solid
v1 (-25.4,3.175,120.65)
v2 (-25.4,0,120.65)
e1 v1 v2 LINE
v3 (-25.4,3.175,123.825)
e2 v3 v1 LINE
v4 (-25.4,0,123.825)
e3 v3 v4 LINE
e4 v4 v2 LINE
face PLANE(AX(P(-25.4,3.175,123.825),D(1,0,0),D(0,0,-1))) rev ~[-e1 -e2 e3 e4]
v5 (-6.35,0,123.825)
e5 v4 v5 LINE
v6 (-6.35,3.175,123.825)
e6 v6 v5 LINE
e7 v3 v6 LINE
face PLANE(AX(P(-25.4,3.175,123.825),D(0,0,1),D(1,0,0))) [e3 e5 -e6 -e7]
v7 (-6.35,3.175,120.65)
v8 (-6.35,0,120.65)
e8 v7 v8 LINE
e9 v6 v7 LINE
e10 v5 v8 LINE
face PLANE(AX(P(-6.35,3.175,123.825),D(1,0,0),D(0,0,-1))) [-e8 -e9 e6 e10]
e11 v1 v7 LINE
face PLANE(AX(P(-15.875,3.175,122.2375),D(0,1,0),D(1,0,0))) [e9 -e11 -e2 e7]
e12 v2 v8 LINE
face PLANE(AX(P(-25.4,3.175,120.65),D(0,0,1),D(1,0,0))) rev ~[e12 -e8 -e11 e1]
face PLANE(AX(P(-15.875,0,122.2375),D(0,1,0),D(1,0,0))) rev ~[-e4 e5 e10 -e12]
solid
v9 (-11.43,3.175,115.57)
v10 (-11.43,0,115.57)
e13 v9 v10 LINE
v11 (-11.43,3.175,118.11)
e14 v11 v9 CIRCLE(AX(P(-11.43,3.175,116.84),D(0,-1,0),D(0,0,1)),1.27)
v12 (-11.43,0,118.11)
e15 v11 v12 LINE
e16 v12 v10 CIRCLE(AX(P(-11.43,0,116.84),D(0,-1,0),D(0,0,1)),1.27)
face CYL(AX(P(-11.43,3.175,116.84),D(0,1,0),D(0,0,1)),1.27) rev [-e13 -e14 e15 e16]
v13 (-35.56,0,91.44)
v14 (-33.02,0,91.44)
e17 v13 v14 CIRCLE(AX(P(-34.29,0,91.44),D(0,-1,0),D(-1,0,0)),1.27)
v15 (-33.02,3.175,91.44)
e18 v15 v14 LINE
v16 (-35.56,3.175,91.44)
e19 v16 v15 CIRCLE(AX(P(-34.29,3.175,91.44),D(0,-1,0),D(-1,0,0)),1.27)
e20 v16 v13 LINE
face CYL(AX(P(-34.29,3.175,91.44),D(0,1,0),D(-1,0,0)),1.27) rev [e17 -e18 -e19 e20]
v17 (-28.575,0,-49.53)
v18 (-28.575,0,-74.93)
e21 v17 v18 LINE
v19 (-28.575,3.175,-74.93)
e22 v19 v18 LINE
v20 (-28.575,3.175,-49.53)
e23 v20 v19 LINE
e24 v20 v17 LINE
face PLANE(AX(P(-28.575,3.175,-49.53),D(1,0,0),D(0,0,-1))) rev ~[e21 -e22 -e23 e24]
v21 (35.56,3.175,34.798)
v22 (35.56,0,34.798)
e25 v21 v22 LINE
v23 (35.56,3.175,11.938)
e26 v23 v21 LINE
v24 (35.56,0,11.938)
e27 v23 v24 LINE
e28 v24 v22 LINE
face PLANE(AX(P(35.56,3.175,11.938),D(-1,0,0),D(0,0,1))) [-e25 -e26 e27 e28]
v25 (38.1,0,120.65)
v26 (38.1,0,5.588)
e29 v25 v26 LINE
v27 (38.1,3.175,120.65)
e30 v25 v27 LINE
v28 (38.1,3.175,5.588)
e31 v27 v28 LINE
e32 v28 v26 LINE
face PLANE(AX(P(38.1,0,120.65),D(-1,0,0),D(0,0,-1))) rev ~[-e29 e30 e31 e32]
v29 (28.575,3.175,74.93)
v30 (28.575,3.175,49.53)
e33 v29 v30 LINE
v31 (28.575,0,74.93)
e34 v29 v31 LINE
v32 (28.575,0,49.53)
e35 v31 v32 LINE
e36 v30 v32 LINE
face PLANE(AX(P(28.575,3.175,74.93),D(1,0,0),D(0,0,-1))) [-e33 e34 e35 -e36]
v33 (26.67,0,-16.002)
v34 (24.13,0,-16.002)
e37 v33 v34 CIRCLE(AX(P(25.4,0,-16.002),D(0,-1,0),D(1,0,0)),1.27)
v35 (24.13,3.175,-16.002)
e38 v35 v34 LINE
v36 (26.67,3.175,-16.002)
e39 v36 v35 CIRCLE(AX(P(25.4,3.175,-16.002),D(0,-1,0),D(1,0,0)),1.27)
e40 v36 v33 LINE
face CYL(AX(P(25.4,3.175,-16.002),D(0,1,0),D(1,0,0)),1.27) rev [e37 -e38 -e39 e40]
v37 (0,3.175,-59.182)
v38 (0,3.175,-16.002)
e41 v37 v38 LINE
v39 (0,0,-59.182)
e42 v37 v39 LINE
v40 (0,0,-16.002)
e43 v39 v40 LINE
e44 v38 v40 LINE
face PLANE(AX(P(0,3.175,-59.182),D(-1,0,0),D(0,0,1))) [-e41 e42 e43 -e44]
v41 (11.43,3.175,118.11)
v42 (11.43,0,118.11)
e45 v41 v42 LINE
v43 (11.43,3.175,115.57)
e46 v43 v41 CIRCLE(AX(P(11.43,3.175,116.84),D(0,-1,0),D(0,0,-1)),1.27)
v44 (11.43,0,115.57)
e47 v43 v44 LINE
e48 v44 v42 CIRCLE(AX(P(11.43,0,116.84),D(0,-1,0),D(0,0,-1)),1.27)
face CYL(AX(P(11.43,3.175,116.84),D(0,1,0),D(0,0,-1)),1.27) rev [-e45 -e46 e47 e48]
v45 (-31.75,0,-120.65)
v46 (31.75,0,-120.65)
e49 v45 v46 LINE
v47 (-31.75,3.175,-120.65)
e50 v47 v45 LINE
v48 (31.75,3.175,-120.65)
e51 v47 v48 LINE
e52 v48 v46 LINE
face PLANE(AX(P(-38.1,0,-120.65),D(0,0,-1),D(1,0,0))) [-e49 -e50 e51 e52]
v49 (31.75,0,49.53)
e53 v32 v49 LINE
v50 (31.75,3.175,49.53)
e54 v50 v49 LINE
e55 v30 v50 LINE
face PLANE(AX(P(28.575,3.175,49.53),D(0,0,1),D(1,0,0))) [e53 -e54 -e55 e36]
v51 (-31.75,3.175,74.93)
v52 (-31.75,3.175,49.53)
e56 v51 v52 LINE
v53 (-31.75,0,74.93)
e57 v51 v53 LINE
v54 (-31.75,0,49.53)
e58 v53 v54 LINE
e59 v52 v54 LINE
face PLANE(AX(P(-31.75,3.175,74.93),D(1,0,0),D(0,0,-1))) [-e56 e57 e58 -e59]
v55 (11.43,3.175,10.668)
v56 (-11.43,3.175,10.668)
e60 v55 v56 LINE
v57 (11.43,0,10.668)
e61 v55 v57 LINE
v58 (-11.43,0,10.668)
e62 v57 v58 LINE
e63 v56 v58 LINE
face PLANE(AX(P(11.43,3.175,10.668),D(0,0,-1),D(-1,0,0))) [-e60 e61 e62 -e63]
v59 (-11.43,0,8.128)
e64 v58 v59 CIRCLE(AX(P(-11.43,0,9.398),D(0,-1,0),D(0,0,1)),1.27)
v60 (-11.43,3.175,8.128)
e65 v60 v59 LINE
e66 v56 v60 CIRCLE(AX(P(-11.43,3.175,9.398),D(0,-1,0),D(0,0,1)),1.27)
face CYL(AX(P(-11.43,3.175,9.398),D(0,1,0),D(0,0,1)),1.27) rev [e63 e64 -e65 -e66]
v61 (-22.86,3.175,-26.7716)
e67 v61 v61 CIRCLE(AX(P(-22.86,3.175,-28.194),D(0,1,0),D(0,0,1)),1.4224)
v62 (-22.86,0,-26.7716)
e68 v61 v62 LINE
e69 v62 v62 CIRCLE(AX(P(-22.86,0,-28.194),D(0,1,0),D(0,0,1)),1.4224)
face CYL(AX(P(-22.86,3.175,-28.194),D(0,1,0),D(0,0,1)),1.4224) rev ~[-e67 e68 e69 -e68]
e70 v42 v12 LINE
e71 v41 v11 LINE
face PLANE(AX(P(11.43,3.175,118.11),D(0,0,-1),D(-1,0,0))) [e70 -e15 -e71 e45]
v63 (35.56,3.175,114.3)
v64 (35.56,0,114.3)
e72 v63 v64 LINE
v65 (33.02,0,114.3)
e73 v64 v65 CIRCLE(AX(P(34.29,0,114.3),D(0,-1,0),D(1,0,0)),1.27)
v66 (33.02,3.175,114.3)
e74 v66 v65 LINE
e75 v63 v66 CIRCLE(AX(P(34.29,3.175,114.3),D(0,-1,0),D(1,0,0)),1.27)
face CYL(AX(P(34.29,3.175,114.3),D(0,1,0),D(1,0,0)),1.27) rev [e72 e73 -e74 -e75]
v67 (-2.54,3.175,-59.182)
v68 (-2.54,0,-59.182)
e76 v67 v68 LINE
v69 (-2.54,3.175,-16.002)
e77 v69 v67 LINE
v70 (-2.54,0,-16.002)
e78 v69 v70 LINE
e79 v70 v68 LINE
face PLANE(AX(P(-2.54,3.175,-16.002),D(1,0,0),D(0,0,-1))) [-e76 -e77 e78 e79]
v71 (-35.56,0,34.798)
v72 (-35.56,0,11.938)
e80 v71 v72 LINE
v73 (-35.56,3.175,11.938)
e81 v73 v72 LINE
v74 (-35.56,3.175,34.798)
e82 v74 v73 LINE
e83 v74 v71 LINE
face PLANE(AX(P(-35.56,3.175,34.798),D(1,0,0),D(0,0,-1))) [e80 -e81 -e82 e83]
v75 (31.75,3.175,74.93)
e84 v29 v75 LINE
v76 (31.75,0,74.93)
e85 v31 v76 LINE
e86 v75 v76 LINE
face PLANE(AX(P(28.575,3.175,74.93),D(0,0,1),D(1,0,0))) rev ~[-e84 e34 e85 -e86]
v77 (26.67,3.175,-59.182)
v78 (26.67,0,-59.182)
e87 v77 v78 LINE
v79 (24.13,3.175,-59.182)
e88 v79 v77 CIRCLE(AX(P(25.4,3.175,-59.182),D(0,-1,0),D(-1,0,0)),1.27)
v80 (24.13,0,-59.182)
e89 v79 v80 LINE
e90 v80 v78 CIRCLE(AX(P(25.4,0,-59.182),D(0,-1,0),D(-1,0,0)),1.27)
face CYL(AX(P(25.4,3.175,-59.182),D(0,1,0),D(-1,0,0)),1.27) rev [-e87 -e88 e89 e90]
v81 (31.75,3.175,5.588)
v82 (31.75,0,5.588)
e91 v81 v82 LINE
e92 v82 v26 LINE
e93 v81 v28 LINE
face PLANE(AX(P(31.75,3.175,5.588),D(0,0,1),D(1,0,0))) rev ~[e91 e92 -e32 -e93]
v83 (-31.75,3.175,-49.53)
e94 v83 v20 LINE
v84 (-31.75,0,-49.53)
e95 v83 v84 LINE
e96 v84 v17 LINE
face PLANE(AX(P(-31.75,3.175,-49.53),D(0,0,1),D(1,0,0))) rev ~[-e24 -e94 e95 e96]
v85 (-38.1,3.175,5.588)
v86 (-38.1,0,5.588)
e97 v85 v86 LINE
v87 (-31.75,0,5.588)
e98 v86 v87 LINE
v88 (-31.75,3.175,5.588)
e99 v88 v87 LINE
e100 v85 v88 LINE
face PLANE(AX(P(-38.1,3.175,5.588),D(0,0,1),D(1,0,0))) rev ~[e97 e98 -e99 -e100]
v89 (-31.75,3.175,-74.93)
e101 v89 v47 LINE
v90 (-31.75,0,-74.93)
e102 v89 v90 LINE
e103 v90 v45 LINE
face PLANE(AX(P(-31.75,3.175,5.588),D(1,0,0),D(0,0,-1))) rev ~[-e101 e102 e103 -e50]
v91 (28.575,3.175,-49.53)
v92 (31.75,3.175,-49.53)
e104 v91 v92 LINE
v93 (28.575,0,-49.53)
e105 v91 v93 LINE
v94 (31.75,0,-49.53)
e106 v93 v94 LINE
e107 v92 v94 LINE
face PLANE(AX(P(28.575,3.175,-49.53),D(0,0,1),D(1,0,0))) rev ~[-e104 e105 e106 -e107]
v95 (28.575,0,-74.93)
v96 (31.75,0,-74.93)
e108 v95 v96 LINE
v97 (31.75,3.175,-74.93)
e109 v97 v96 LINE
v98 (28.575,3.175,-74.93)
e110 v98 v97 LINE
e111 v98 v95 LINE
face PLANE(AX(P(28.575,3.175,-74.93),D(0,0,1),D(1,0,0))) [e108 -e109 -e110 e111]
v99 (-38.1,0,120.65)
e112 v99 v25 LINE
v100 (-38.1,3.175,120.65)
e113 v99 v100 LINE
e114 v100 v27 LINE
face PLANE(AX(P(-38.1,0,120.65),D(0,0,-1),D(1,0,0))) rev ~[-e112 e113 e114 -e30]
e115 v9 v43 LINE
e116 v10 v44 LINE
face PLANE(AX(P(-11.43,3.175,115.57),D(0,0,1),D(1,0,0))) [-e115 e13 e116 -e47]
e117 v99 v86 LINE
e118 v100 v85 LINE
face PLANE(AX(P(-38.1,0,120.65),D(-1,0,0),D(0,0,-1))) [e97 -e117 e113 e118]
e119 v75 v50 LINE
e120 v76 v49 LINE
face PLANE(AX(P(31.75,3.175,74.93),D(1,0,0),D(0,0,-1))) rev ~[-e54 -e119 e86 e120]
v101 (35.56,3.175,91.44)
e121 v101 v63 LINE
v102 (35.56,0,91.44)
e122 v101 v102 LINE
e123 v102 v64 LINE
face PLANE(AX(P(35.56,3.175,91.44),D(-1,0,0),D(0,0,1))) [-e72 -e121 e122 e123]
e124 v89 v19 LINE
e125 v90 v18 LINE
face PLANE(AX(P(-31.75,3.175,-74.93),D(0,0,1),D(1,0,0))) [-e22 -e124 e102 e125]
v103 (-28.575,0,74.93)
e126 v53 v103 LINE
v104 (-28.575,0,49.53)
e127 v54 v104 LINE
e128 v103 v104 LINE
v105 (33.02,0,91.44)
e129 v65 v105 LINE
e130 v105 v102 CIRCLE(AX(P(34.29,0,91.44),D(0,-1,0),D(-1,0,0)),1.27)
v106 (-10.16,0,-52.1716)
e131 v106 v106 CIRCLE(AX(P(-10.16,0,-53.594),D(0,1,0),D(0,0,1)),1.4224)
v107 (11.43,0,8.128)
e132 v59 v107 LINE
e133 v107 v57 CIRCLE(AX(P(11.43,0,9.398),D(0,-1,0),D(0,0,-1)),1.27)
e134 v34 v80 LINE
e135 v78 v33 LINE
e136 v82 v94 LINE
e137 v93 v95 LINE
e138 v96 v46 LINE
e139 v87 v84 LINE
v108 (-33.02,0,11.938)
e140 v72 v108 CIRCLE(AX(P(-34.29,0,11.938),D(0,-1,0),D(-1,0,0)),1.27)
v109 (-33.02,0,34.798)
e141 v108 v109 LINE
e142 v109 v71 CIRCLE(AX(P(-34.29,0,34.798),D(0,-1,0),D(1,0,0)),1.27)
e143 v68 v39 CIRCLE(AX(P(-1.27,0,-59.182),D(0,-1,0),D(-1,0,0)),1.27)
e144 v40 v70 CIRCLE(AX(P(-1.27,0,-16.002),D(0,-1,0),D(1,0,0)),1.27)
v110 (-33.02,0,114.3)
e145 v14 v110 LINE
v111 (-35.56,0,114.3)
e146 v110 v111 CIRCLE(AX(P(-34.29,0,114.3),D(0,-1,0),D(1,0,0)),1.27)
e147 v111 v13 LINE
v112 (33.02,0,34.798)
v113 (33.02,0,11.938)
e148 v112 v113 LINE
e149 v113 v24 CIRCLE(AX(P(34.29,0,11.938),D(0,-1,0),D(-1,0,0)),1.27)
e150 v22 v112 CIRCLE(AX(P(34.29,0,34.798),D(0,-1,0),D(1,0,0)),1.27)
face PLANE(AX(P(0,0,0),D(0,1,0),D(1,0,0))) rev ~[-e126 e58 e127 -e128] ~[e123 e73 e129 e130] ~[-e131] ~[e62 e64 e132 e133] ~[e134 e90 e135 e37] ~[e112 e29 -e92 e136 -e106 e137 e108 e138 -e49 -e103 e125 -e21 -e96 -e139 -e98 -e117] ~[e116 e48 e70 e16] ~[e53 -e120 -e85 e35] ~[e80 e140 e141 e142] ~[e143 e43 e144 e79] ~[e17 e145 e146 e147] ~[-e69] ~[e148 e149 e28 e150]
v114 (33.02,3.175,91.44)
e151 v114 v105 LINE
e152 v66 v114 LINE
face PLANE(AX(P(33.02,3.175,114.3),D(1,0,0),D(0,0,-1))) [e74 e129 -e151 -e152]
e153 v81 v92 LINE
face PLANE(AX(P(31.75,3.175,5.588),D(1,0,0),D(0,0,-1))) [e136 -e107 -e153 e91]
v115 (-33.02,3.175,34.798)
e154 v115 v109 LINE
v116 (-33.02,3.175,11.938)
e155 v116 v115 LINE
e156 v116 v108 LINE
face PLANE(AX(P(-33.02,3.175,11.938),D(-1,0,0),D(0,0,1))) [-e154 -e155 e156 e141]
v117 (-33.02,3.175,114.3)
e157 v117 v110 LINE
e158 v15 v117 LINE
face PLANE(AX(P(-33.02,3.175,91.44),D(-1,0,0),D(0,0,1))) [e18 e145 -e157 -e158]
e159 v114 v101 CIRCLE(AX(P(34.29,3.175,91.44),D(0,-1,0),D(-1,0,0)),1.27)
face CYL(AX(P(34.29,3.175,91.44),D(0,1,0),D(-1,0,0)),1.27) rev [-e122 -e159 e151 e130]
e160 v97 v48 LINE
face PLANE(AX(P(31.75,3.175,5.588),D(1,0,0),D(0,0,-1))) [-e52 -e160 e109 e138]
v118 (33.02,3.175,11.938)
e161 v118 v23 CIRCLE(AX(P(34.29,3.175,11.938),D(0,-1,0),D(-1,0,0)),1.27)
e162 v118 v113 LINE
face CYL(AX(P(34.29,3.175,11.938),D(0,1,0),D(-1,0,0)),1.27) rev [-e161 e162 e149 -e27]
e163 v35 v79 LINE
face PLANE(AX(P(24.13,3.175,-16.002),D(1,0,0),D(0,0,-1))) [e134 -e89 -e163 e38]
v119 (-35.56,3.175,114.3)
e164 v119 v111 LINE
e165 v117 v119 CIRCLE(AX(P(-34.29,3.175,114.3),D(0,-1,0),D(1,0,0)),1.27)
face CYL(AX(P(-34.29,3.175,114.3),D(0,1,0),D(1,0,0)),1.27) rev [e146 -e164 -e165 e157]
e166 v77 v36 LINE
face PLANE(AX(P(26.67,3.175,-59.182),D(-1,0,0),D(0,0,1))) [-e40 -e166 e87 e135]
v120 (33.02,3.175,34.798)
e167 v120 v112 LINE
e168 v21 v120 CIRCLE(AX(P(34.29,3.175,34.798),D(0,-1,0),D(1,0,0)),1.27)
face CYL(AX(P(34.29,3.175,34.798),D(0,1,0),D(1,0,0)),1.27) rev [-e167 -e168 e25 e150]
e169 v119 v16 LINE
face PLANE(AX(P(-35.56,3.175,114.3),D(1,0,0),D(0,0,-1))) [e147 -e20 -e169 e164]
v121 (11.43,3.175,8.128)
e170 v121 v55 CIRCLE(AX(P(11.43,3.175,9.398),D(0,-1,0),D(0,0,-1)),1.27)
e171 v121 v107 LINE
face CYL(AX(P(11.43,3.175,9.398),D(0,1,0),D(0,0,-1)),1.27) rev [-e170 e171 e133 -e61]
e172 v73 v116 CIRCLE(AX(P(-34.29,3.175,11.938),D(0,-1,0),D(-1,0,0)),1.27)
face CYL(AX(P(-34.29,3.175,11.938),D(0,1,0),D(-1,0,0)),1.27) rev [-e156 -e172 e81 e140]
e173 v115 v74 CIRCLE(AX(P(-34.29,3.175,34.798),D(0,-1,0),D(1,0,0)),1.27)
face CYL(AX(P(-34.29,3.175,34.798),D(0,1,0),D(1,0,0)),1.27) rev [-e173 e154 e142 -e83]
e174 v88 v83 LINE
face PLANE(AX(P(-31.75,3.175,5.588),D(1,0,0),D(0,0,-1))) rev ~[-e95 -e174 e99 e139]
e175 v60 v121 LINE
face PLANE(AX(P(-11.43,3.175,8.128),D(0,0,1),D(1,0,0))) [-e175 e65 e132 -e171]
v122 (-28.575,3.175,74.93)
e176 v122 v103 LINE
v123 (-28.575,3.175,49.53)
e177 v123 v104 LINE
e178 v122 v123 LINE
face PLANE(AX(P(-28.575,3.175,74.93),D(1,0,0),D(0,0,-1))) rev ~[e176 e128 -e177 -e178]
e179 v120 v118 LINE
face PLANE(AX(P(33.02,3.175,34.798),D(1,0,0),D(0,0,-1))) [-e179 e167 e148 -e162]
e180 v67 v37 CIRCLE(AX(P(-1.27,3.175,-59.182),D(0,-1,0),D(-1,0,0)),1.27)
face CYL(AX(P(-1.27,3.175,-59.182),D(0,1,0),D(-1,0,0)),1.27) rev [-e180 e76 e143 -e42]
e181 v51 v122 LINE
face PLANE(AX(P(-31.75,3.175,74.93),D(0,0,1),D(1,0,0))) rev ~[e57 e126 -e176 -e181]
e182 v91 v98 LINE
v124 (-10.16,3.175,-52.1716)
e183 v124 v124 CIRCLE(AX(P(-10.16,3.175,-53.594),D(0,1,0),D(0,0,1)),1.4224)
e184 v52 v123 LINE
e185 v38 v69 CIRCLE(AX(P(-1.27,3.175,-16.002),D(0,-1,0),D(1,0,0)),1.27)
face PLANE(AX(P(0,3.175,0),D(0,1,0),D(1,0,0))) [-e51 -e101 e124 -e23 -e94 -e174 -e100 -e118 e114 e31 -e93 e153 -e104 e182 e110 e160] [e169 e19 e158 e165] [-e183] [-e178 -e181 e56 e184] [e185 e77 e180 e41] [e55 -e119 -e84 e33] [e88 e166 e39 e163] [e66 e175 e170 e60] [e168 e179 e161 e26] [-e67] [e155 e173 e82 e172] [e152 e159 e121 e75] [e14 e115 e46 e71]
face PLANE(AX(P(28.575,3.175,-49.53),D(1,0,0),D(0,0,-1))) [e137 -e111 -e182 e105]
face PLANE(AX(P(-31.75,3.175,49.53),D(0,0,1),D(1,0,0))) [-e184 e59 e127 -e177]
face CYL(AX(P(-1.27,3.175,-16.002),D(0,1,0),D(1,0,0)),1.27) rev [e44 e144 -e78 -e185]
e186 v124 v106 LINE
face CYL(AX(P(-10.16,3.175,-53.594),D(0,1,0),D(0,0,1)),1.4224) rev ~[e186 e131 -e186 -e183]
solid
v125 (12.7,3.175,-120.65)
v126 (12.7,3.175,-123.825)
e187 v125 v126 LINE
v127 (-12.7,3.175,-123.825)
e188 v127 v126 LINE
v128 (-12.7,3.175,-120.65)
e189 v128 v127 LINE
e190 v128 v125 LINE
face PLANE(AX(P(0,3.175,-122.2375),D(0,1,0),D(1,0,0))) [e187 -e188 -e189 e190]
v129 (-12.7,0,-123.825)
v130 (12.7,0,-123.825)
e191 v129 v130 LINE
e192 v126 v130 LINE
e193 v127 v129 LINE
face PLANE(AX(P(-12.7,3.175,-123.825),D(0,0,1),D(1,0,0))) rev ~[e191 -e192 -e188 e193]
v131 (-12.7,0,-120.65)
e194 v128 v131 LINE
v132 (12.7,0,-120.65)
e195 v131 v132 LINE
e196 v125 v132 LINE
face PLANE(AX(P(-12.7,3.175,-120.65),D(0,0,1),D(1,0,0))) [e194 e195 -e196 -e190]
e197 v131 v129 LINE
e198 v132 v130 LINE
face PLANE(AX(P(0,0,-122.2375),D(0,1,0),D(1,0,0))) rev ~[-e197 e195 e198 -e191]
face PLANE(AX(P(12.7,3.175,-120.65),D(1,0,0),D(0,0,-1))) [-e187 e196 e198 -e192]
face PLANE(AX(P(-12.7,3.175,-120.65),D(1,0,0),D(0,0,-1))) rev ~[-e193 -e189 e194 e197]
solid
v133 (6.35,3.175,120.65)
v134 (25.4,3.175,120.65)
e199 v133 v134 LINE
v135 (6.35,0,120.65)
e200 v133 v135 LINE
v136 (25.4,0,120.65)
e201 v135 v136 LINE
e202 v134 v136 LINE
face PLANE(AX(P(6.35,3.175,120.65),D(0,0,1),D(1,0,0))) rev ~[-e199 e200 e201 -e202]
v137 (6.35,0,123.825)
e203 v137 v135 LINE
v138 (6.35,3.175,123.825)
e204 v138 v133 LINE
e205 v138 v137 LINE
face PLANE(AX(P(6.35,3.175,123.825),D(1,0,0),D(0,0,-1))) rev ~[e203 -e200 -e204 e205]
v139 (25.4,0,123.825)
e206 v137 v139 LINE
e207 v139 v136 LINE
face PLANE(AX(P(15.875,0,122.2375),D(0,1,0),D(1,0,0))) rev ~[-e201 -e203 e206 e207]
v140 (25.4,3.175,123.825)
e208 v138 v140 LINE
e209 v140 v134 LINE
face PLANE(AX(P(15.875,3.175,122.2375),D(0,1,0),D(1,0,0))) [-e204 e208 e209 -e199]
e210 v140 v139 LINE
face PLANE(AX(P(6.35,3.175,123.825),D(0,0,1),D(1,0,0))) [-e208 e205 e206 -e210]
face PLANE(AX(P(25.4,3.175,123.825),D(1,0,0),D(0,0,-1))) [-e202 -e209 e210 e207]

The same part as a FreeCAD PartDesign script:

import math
import FreeCAD as App
import Part
import Sketcher
Q = App.Units.Quantity


def add_polygon(sketch, points):
    """Adds a closed chain of lines whose ends are joined by coincident constraints."""
    first, n = sketch.GeometryCount, len(points)
    for a, b in zip(points, points[1:] + points[:1]):
        sketch.addGeometry(Part.LineSegment(App.Vector(*a, 0), App.Vector(*b, 0)), False)
    for i in range(n):
        sketch.addConstraint(Sketcher.Constraint("Coincident", first + i, 2, first + (i + 1) % n, 1))

doc = App.newDocument("Part")
body = doc.addObject("PartDesign::Body", "Body")

# Sketch on XZ plane
sketch1 = body.newObject("Sketcher::SketchObject", "Sketch")
sketch1.AttachmentSupport = (doc.getObject("XZ_Plane"), [""])
sketch1.MapMode = "FlatFace"
add_polygon(sketch1, [(-38.1, -120.65), (-38.1, 120.65), (38.1, 120.65), (38.1, -120.65)])  # lines 0-3
sketch1.addConstraint(Sketcher.Constraint("Vertical", 0))
sketch1.addConstraint(Sketcher.Constraint("Horizontal", 1))
sketch1.addConstraint(Sketcher.Constraint("Vertical", 2))
sketch1.addConstraint(Sketcher.Constraint("Horizontal", 3))
sketch1.addConstraint(Sketcher.Constraint("Symmetric", 0, 2, 2, 2, -1, 1))
sketch1.addConstraint(Sketcher.Constraint("DistanceX", 1, 1, 1, 2, Q("3 in")))
sketch1.addConstraint(Sketcher.Constraint("DistanceY", 0, 1, 0, 2, Q("9.5 in")))
pad1 = body.newObject("PartDesign::Pad", "Pad")
pad1.Profile = sketch1
pad1.Length = Q("0.125 in")
pad1.Reversed = True

# Sketch on XZ plane
sketch2 = body.newObject("Sketcher::SketchObject", "Sketch001")
sketch2.AttachmentSupport = (doc.getObject("XZ_Plane"), [""])
sketch2.MapMode = "FlatFace"
sketch2.AttachmentOffset = App.Placement(App.Vector(0, 0, -0.125 * 25.4), App.Rotation())
add_polygon(sketch2, [(-38.1, -120.65), (-38.1, 5.588), (-31.75, 5.588), (-31.75, -120.65)])  # lines 0-3
sketch2.addConstraint(Sketcher.Constraint("Vertical", 0))
sketch2.addConstraint(Sketcher.Constraint("Horizontal", 1))
sketch2.addConstraint(Sketcher.Constraint("Vertical", 2))
sketch2.addConstraint(Sketcher.Constraint("Horizontal", 3))
sketch2.addConstraint(Sketcher.Constraint("DistanceX", 1, 1, 1, 2, Q("0.25 in")))
sketch2.addConstraint(Sketcher.Constraint("DistanceY", 0, 1, 0, 2, Q("4.97 in")))
sketch2.addConstraint(Sketcher.Constraint("DistanceX", 0, 2, -1, 1, Q("1.5 in")))
sketch2.addConstraint(Sketcher.Constraint("DistanceY", -1, 1, 0, 2, Q("0.22 in")))
pocket1 = body.newObject("PartDesign::Pocket", "Pocket")
pocket1.Profile = sketch2
pocket1.Length = Q("0.125 in")
pocket1.Reversed = True

# Sketch on XZ plane
sketch3 = body.newObject("Sketcher::SketchObject", "Sketch002")
sketch3.AttachmentSupport = (doc.getObject("XZ_Plane"), [""])
sketch3.MapMode = "FlatFace"
sketch3.AttachmentOffset = App.Placement(App.Vector(0, 0, -0.125 * 25.4), App.Rotation())
add_polygon(sketch3, [(31.75, -120.65), (31.75, 5.588), (38.1, 5.588), (38.1, -120.65)])  # lines 0-3
sketch3.addConstraint(Sketcher.Constraint("Vertical", 0))
sketch3.addConstraint(Sketcher.Constraint("Horizontal", 1))
sketch3.addConstraint(Sketcher.Constraint("Vertical", 2))
sketch3.addConstraint(Sketcher.Constraint("Horizontal", 3))
sketch3.addConstraint(Sketcher.Constraint("DistanceX", 1, 1, 1, 2, Q("0.25 in")))
sketch3.addConstraint(Sketcher.Constraint("DistanceY", 0, 1, 0, 2, Q("4.97 in")))
sketch3.addConstraint(Sketcher.Constraint("DistanceX", -1, 1, 1, 2, Q("1.5 in")))
sketch3.addConstraint(Sketcher.Constraint("DistanceY", -1, 1, 0, 2, Q("0.22 in")))
pocket2 = body.newObject("PartDesign::Pocket", "Pocket001")
pocket2.Profile = sketch3
pocket2.Length = Q("0.125 in")
pocket2.Reversed = True

# Sketch on XZ plane
sketch4 = body.newObject("Sketcher::SketchObject", "Sketch003")
sketch4.AttachmentSupport = (doc.getObject("XZ_Plane"), [""])
sketch4.MapMode = "FlatFace"
sketch4.AttachmentOffset = App.Placement(App.Vector(0, 0, -0.125 * 25.4), App.Rotation())
add_polygon(sketch4, [(-31.75, 49.53), (-31.75, 74.93), (-28.575, 74.93), (-28.575, 49.53)])  # lines 0-3
sketch4.addConstraint(Sketcher.Constraint("Vertical", 0))
sketch4.addConstraint(Sketcher.Constraint("Horizontal", 1))
sketch4.addConstraint(Sketcher.Constraint("Vertical", 2))
sketch4.addConstraint(Sketcher.Constraint("Horizontal", 3))
sketch4.addConstraint(Sketcher.Constraint("DistanceY", 0, 1, 0, 2, Q("1 in")))
sketch4.addConstraint(Sketcher.Constraint("DistanceX", 1, 1, 1, 2, Q("0.125 in")))
sketch4.addConstraint(Sketcher.Constraint("DistanceX", 0, 2, -1, 1, Q("1.25 in")))
sketch4.addConstraint(Sketcher.Constraint("DistanceY", -1, 1, 0, 2, Q("2.95 in")))
pocket3 = body.newObject("PartDesign::Pocket", "Pocket002")
pocket3.Profile = sketch4
pocket3.Length = Q("0.125 in")
pocket3.Reversed = True

# Sketch on XZ plane
sketch5 = body.newObject("Sketcher::SketchObject", "Sketch004")
sketch5.AttachmentSupport = (doc.getObject("XZ_Plane"), [""])
sketch5.MapMode = "FlatFace"
sketch5.AttachmentOffset = App.Placement(App.Vector(0, 0, -0.125 * 25.4), App.Rotation())
add_polygon(sketch5, [(-31.75, 49.53), (-31.75, 74.93), (-28.575, 74.93), (-28.575, 49.53)])  # lines 0-3
add_polygon(sketch5, [(28.575, 49.53), (28.575, 74.93), (31.75, 74.93), (31.75, 49.53)])  # lines 4-7
add_polygon(sketch5, [(-31.75, -74.93), (-31.75, -49.53), (-28.575, -49.53), (-28.575, -74.93)])  # lines 8-11
add_polygon(sketch5, [(28.575, -74.93), (28.575, -49.53), (31.75, -49.53), (31.75, -74.93)])  # lines 12-15
sketch5.addConstraint(Sketcher.Constraint("Vertical", 0))
sketch5.addConstraint(Sketcher.Constraint("Horizontal", 1))
sketch5.addConstraint(Sketcher.Constraint("Vertical", 2))
sketch5.addConstraint(Sketcher.Constraint("Horizontal", 3))
sketch5.addConstraint(Sketcher.Constraint("Vertical", 4))
sketch5.addConstraint(Sketcher.Constraint("Horizontal", 5))
sketch5.addConstraint(Sketcher.Constraint("Vertical", 6))
sketch5.addConstraint(Sketcher.Constraint("Horizontal", 7))
sketch5.addConstraint(Sketcher.Constraint("Vertical", 8))
sketch5.addConstraint(Sketcher.Constraint("Horizontal", 9))
sketch5.addConstraint(Sketcher.Constraint("Vertical", 10))
sketch5.addConstraint(Sketcher.Constraint("Horizontal", 11))
sketch5.addConstraint(Sketcher.Constraint("Vertical", 12))
sketch5.addConstraint(Sketcher.Constraint("Horizontal", 13))
sketch5.addConstraint(Sketcher.Constraint("Vertical", 14))
sketch5.addConstraint(Sketcher.Constraint("Horizontal", 15))
sketch5.addConstraint(Sketcher.Constraint("Symmetric", 6, 2, 8, 2, -1, 1))
sketch5.addConstraint(Sketcher.Constraint("Symmetric", 4, 2, 10, 2, -1, 1))
sketch5.addConstraint(Sketcher.Constraint("Symmetric", 2, 2, 12, 2, -1, 1))
sketch5.addConstraint(Sketcher.Constraint("Symmetric", 0, 2, 14, 2, -1, 1))
sketch5.addConstraint(Sketcher.Constraint("Symmetric", 1, 2, 4, 2, -2))
sketch5.addConstraint(Sketcher.Constraint("Symmetric", 3, 2, 6, 2, -2))
sketch5.addConstraint(Sketcher.Constraint("DistanceY", 0, 1, 0, 2, Q("1 in")))
sketch5.addConstraint(Sketcher.Constraint("DistanceX", 0, 2, 5, 2, Q("2.5 in")))
sketch5.addConstraint(Sketcher.Constraint("DistanceY", 8, 2, 3, 2, Q("3.9 in")))
sketch5.addConstraint(Sketcher.Constraint("DistanceX", 1, 1, 1, 2, Q("0.125 in")))
pocket4 = body.newObject("PartDesign::Pocket", "Pocket003")
pocket4.Profile = sketch5
pocket4.Length = Q("0.125 in")
pocket4.Reversed = True

# Sketch on XZ plane
sketch6 = body.newObject("Sketcher::SketchObject", "Sketch005")
sketch6.AttachmentSupport = (doc.getObject("XZ_Plane"), [""])
sketch6.MapMode = "FlatFace"
sketch6.AttachmentOffset = App.Placement(App.Vector(0, 0, -0.125 * 25.4), App.Rotation())
sketch6.addGeometry(Part.LineSegment(App.Vector(11.43, 115.57, 0), App.Vector(-11.43, 115.57, 0)), False)
sketch6.addGeometry(Part.ArcOfCircle(Part.Circle(App.Vector(-11.43, 116.84, 0), App.Vector(0, 0, 1), 1.27), math.radians(90), math.radians(270)), False)
sketch6.addGeometry(Part.LineSegment(App.Vector(-11.43, 118.11, 0), App.Vector(11.43, 118.11, 0)), False)
sketch6.addGeometry(Part.ArcOfCircle(Part.Circle(App.Vector(11.43, 116.84, 0), App.Vector(0, 0, 1), 1.27), math.radians(-90), math.radians(90)), False)
sketch6.addGeometry(Part.LineSegment(App.Vector(11.43, 8.128, 0), App.Vector(-11.43, 8.128, 0)), False)
sketch6.addGeometry(Part.ArcOfCircle(Part.Circle(App.Vector(-11.43, 9.398, 0), App.Vector(0, 0, 1), 1.27), math.radians(90), math.radians(270)), False)
sketch6.addGeometry(Part.LineSegment(App.Vector(-11.43, 10.668, 0), App.Vector(11.43, 10.668, 0)), False)
sketch6.addGeometry(Part.ArcOfCircle(Part.Circle(App.Vector(11.43, 9.398, 0), App.Vector(0, 0, 1), 1.27), math.radians(-90), math.radians(90)), False)
sketch6.addGeometry(Part.LineSegment(App.Vector(-35.56, 91.44, 0), App.Vector(-35.56, 114.3, 0)), False)
sketch6.addGeometry(Part.ArcOfCircle(Part.Circle(App.Vector(-34.29, 114.3, 0), App.Vector(0, 0, 1), 1.27), math.radians(0), math.radians(180)), False)
sketch6.addGeometry(Part.LineSegment(App.Vector(-33.02, 114.3, 0), App.Vector(-33.02, 91.44, 0)), False)
sketch6.addGeometry(Part.ArcOfCircle(Part.Circle(App.Vector(-34.29, 91.44, 0), App.Vector(0, 0, 1), 1.27), math.radians(180), math.radians(360)), False)
sketch6.addGeometry(Part.LineSegment(App.Vector(33.02, 91.44, 0), App.Vector(33.02, 114.3, 0)), False)
sketch6.addGeometry(Part.ArcOfCircle(Part.Circle(App.Vector(34.29, 114.3, 0), App.Vector(0, 0, 1), 1.27), math.radians(0), math.radians(180)), False)
sketch6.addGeometry(Part.LineSegment(App.Vector(35.56, 114.3, 0), App.Vector(35.56, 91.44, 0)), False)
sketch6.addGeometry(Part.ArcOfCircle(Part.Circle(App.Vector(34.29, 91.44, 0), App.Vector(0, 0, 1), 1.27), math.radians(180), math.radians(360)), False)
sketch6.addGeometry(Part.LineSegment(App.Vector(33.02, 11.938, 0), App.Vector(33.02, 34.798, 0)), False)
sketch6.addGeometry(Part.ArcOfCircle(Part.Circle(App.Vector(34.29, 34.798, 0), App.Vector(0, 0, 1), 1.27), math.radians(0), math.radians(180)), False)
sketch6.addGeometry(Part.LineSegment(App.Vector(35.56, 34.798, 0), App.Vector(35.56, 11.938, 0)), False)
sketch6.addGeometry(Part.ArcOfCircle(Part.Circle(App.Vector(34.29, 11.938, 0), App.Vector(0, 0, 1), 1.27), math.radians(180), math.radians(360)), False)
sketch6.addGeometry(Part.LineSegment(App.Vector(-35.56, 11.938, 0), App.Vector(-35.56, 34.798, 0)), False)
sketch6.addGeometry(Part.ArcOfCircle(Part.Circle(App.Vector(-34.29, 34.798, 0), App.Vector(0, 0, 1), 1.27), math.radians(0), math.radians(180)), False)
sketch6.addGeometry(Part.LineSegment(App.Vector(-33.02, 34.798, 0), App.Vector(-33.02, 11.938, 0)), False)
sketch6.addGeometry(Part.ArcOfCircle(Part.Circle(App.Vector(-34.29, 11.938, 0), App.Vector(0, 0, 1), 1.27), math.radians(180), math.radians(360)), False)
sketch6.addConstraint(Sketcher.Constraint("Tangent", 0, 2, 1, 2))
sketch6.addConstraint(Sketcher.Constraint("Tangent", 1, 1, 2, 1))
sketch6.addConstraint(Sketcher.Constraint("Tangent", 2, 2, 3, 2))
sketch6.addConstraint(Sketcher.Constraint("Tangent", 3, 1, 0, 1))
sketch6.addConstraint(Sketcher.Constraint("Tangent", 4, 2, 5, 2))
sketch6.addConstraint(Sketcher.Constraint("Tangent", 5, 1, 6, 1))
sketch6.addConstraint(Sketcher.Constraint("Tangent", 6, 2, 7, 2))
sketch6.addConstraint(Sketcher.Constraint("Tangent", 7, 1, 4, 1))
sketch6.addConstraint(Sketcher.Constraint("Tangent", 8, 2, 9, 2))
sketch6.addConstraint(Sketcher.Constraint("Tangent", 9, 1, 10, 1))
sketch6.addConstraint(Sketcher.Constraint("Tangent", 10, 2, 11, 2))
sketch6.addConstraint(Sketcher.Constraint("Tangent", 11, 1, 8, 1))
sketch6.addConstraint(Sketcher.Constraint("Tangent", 12, 2, 13, 2))
sketch6.addConstraint(Sketcher.Constraint("Tangent", 13, 1, 14, 1))
sketch6.addConstraint(Sketcher.Constraint("Tangent", 14, 2, 15, 2))
sketch6.addConstraint(Sketcher.Constraint("Tangent", 15, 1, 12, 1))
sketch6.addConstraint(Sketcher.Constraint("Tangent", 16, 2, 17, 2))
sketch6.addConstraint(Sketcher.Constraint("Tangent", 17, 1, 18, 1))
sketch6.addConstraint(Sketcher.Constraint("Tangent", 18, 2, 19, 2))
sketch6.addConstraint(Sketcher.Constraint("Tangent", 19, 1, 16, 1))
sketch6.addConstraint(Sketcher.Constraint("Tangent", 20, 2, 21, 2))
sketch6.addConstraint(Sketcher.Constraint("Tangent", 21, 1, 22, 1))
sketch6.addConstraint(Sketcher.Constraint("Tangent", 22, 2, 23, 2))
sketch6.addConstraint(Sketcher.Constraint("Tangent", 23, 1, 20, 1))
sketch6.addConstraint(Sketcher.Constraint("Horizontal", 0))
sketch6.addConstraint(Sketcher.Constraint("Horizontal", 2))
sketch6.addConstraint(Sketcher.Constraint("Horizontal", 4))
sketch6.addConstraint(Sketcher.Constraint("Horizontal", 6))
sketch6.addConstraint(Sketcher.Constraint("Vertical", 8))
sketch6.addConstraint(Sketcher.Constraint("Vertical", 10))
sketch6.addConstraint(Sketcher.Constraint("Vertical", 12))
sketch6.addConstraint(Sketcher.Constraint("Vertical", 14))
sketch6.addConstraint(Sketcher.Constraint("Vertical", 16))
sketch6.addConstraint(Sketcher.Constraint("Vertical", 18))
sketch6.addConstraint(Sketcher.Constraint("Vertical", 20))
sketch6.addConstraint(Sketcher.Constraint("Vertical", 22))
sketch6.addConstraint(Sketcher.Constraint("Equal", 3, 5))
sketch6.addConstraint(Sketcher.Constraint("Equal", 7, 9))
sketch6.addConstraint(Sketcher.Constraint("Equal", 11, 13))
sketch6.addConstraint(Sketcher.Constraint("Equal", 15, 17))
sketch6.addConstraint(Sketcher.Constraint("Equal", 19, 21))
sketch6.addConstraint(Sketcher.Constraint("Symmetric", 9, 3, 13, 3, -2))
sketch6.addConstraint(Sketcher.Constraint("Symmetric", 17, 3, 21, 3, -2))
sketch6.addConstraint(Sketcher.Constraint("Horizontal", 11, 3, 15, 3))
sketch6.addConstraint(Sketcher.Constraint("Horizontal", 19, 3, 23, 3))
sketch6.addConstraint(Sketcher.Constraint("Vertical", 1, 3, 5, 3))
sketch6.addConstraint(Sketcher.Constraint("Vertical", 3, 3, 7, 3))
sketch6.addConstraint(Sketcher.Constraint("Vertical", 15, 3, 17, 3))
sketch6.addConstraint(Sketcher.Constraint("Equal", 6, 8))
sketch6.addConstraint(Sketcher.Constraint("Equal", 14, 16))
sketch6.addConstraint(Sketcher.Constraint("Radius", 1, Q("0.05 in")))
sketch6.addConstraint(Sketcher.Constraint("DistanceX", 0, 2, 0, 1, Q("0.9 in")))
sketch6.addConstraint(Sketcher.Constraint("DistanceY", 11, 3, 1, 3, Q("1 in")))
sketch6.addConstraint(Sketcher.Constraint("DistanceY", 7, 3, 17, 3, Q("1 in")))
sketch6.addConstraint(Sketcher.Constraint("DistanceY", -1, 1, 1, 3, Q("4.6 in")))
sketch6.addConstraint(Sketcher.Constraint("DistanceX", 8, 2, -1, 1, Q("1.4 in")))
sketch6.addConstraint(Sketcher.Constraint("DistanceX", 9, 3, 1, 3, Q("0.9 in")))
sketch6.addConstraint(Sketcher.Constraint("DistanceY", -1, 1, 5, 3, Q("0.37 in")))
pocket5 = body.newObject("PartDesign::Pocket", "Pocket004")
pocket5.Profile = sketch6
pocket5.Length = Q("0.125 in")
pocket5.Reversed = True

# Sketch on XZ plane
sketch7 = body.newObject("Sketcher::SketchObject", "Sketch006")
sketch7.AttachmentSupport = (doc.getObject("XZ_Plane"), [""])
sketch7.MapMode = "FlatFace"
sketch7.AttachmentOffset = App.Placement(App.Vector(0, 0, -0.125 * 25.4), App.Rotation())
sketch7.addGeometry(Part.Circle(App.Vector(-22.86, -28.194, 0), App.Vector(0, 0, 1), 1.4224), False)
sketch7.addGeometry(Part.Circle(App.Vector(-10.16, -53.594, 0), App.Vector(0, 0, 1), 1.4224), False)
sketch7.addGeometry(Part.LineSegment(App.Vector(-2.54, -59.182, 0), App.Vector(-2.54, -16.002, 0)), False)
sketch7.addGeometry(Part.ArcOfCircle(Part.Circle(App.Vector(-1.27, -16.002, 0), App.Vector(0, 0, 1), 1.27), math.radians(0), math.radians(180)), False)
sketch7.addGeometry(Part.LineSegment(App.Vector(0, -16.002, 0), App.Vector(0, -59.182, 0)), False)
sketch7.addGeometry(Part.ArcOfCircle(Part.Circle(App.Vector(-1.27, -59.182, 0), App.Vector(0, 0, 1), 1.27), math.radians(180), math.radians(360)), False)
sketch7.addGeometry(Part.LineSegment(App.Vector(24.13, -59.182, 0), App.Vector(24.13, -16.002, 0)), False)
sketch7.addGeometry(Part.ArcOfCircle(Part.Circle(App.Vector(25.4, -16.002, 0), App.Vector(0, 0, 1), 1.27), math.radians(0), math.radians(180)), False)
sketch7.addGeometry(Part.LineSegment(App.Vector(26.67, -16.002, 0), App.Vector(26.67, -59.182, 0)), False)
sketch7.addGeometry(Part.ArcOfCircle(Part.Circle(App.Vector(25.4, -59.182, 0), App.Vector(0, 0, 1), 1.27), math.radians(180), math.radians(360)), False)
sketch7.addConstraint(Sketcher.Constraint("Tangent", 2, 2, 3, 2))
sketch7.addConstraint(Sketcher.Constraint("Tangent", 3, 1, 4, 1))
sketch7.addConstraint(Sketcher.Constraint("Tangent", 4, 2, 5, 2))
sketch7.addConstraint(Sketcher.Constraint("Tangent", 5, 1, 2, 1))
sketch7.addConstraint(Sketcher.Constraint("Tangent", 6, 2, 7, 2))
sketch7.addConstraint(Sketcher.Constraint("Tangent", 7, 1, 8, 1))
sketch7.addConstraint(Sketcher.Constraint("Tangent", 8, 2, 9, 2))
sketch7.addConstraint(Sketcher.Constraint("Tangent", 9, 1, 6, 1))
sketch7.addConstraint(Sketcher.Constraint("Vertical", 2))
sketch7.addConstraint(Sketcher.Constraint("Vertical", 4))
sketch7.addConstraint(Sketcher.Constraint("Vertical", 6))
sketch7.addConstraint(Sketcher.Constraint("Vertical", 8))
sketch7.addConstraint(Sketcher.Constraint("Equal", 0, 1))
sketch7.addConstraint(Sketcher.Constraint("Equal", 5, 7))
sketch7.addConstraint(Sketcher.Constraint("PointOnObject", 3, 1, -2))
sketch7.addConstraint(Sketcher.Constraint("Horizontal", 3, 3, 7, 3))
sketch7.addConstraint(Sketcher.Constraint("Horizontal", 5, 3, 9, 3))
sketch7.addConstraint(Sketcher.Constraint("Radius", 3, Q("0.05 in")))
sketch7.addConstraint(Sketcher.Constraint("Diameter", 0, Q("0.112 in")))
sketch7.addConstraint(Sketcher.Constraint("DistanceY", 2, 1, 2, 2, Q("1.7 in")))
sketch7.addConstraint(Sketcher.Constraint("DistanceX", -1, 1, 7, 3, Q("1 in")))
sketch7.addConstraint(Sketcher.Constraint("DistanceY", 1, 3, 0, 3, Q("1 in")))
sketch7.addConstraint(Sketcher.Constraint("DistanceX", 0, 3, -1, 1, Q("0.9 in")))
sketch7.addConstraint(Sketcher.Constraint("DistanceX", 1, 3, -1, 1, Q("0.4 in")))
sketch7.addConstraint(Sketcher.Constraint("DistanceY", 0, 3, -1, 1, Q("1.11 in")))
sketch7.addConstraint(Sketcher.Constraint("DistanceY", 3, 3, -1, 1, Q("0.63 in")))
pocket6 = body.newObject("PartDesign::Pocket", "Pocket005")
pocket6.Profile = sketch7
pocket6.Length = Q("0.125 in")
pocket6.Reversed = True
body2 = doc.addObject("PartDesign::Body", "Body001")

# Sketch on XZ plane
sketch8 = body2.newObject("Sketcher::SketchObject", "Sketch007")
sketch8.AttachmentSupport = (doc.getObject("XZ_Plane001"), [""])
sketch8.MapMode = "FlatFace"
sketch8.AttachmentOffset = App.Placement(App.Vector(0, 0, -0.125 * 25.4), App.Rotation())
add_polygon(sketch8, [(-25.4, 120.65), (-25.4, 123.825), (-6.35, 123.825), (-6.35, 120.65)])  # lines 0-3
sketch8.addConstraint(Sketcher.Constraint("Vertical", 0))
sketch8.addConstraint(Sketcher.Constraint("Horizontal", 1))
sketch8.addConstraint(Sketcher.Constraint("Vertical", 2))
sketch8.addConstraint(Sketcher.Constraint("Horizontal", 3))
sketch8.addConstraint(Sketcher.Constraint("DistanceX", 0, 2, -1, 1, Q("1 in")))
sketch8.addConstraint(Sketcher.Constraint("DistanceX", 1, 1, 1, 2, Q("0.75 in")))
sketch8.addConstraint(Sketcher.Constraint("DistanceY", 0, 1, 0, 2, Q("0.125 in")))
sketch8.addConstraint(Sketcher.Constraint("DistanceY", -1, 1, 2, 2, Q("4.75 in")))
pad2 = body2.newObject("PartDesign::Pad", "Pad001")
pad2.Profile = sketch8
pad2.Length = Q("0.125 in")
body3 = doc.addObject("PartDesign::Body", "Body002")

# Sketch on XZ plane
sketch9 = body3.newObject("Sketcher::SketchObject", "Sketch008")
sketch9.AttachmentSupport = (doc.getObject("XZ_Plane002"), [""])
sketch9.MapMode = "FlatFace"
sketch9.AttachmentOffset = App.Placement(App.Vector(0, 0, -0.125 * 25.4), App.Rotation())
add_polygon(sketch9, [(6.35, 120.65), (6.35, 123.825), (25.4, 123.825), (25.4, 120.65)])  # lines 0-3
sketch9.addConstraint(Sketcher.Constraint("Vertical", 0))
sketch9.addConstraint(Sketcher.Constraint("Horizontal", 1))
sketch9.addConstraint(Sketcher.Constraint("Vertical", 2))
sketch9.addConstraint(Sketcher.Constraint("Horizontal", 3))
sketch9.addConstraint(Sketcher.Constraint("DistanceX", -1, 1, 1, 2, Q("1 in")))
sketch9.addConstraint(Sketcher.Constraint("DistanceX", 1, 1, 1, 2, Q("0.75 in")))
sketch9.addConstraint(Sketcher.Constraint("DistanceY", 0, 1, 0, 2, Q("0.125 in")))
sketch9.addConstraint(Sketcher.Constraint("DistanceY", -1, 1, 2, 2, Q("4.75 in")))
pad3 = body3.newObject("PartDesign::Pad", "Pad002")
pad3.Profile = sketch9
pad3.Length = Q("0.125 in")
body4 = doc.addObject("PartDesign::Body", "Body003")

# Sketch on XZ plane
sketch10 = body4.newObject("Sketcher::SketchObject", "Sketch009")
sketch10.AttachmentSupport = (doc.getObject("XZ_Plane003"), [""])
sketch10.MapMode = "FlatFace"
sketch10.AttachmentOffset = App.Placement(App.Vector(0, 0, -0.125 * 25.4), App.Rotation())
add_polygon(sketch10, [(-12.7, -123.825), (-12.7, -120.65), (12.7, -120.65), (12.7, -123.825)])  # lines 0-3
sketch10.addConstraint(Sketcher.Constraint("Vertical", 0))
sketch10.addConstraint(Sketcher.Constraint("Horizontal", 1))
sketch10.addConstraint(Sketcher.Constraint("Vertical", 2))
sketch10.addConstraint(Sketcher.Constraint("Horizontal", 3))
sketch10.addConstraint(Sketcher.Constraint("DistanceX", 1, 1, 1, 2, Q("1 in")))
sketch10.addConstraint(Sketcher.Constraint("DistanceX", 0, 2, -1, 1, Q("0.5 in")))
sketch10.addConstraint(Sketcher.Constraint("DistanceY", 0, 1, 0, 2, Q("0.125 in")))
sketch10.addConstraint(Sketcher.Constraint("DistanceY", 0, 2, -1, 1, Q("4.75 in")))
pad4 = body4.newObject("PartDesign::Pad", "Pad003")
pad4.Profile = sketch10
pad4.Length = Q("0.125 in")

doc.recompute()
